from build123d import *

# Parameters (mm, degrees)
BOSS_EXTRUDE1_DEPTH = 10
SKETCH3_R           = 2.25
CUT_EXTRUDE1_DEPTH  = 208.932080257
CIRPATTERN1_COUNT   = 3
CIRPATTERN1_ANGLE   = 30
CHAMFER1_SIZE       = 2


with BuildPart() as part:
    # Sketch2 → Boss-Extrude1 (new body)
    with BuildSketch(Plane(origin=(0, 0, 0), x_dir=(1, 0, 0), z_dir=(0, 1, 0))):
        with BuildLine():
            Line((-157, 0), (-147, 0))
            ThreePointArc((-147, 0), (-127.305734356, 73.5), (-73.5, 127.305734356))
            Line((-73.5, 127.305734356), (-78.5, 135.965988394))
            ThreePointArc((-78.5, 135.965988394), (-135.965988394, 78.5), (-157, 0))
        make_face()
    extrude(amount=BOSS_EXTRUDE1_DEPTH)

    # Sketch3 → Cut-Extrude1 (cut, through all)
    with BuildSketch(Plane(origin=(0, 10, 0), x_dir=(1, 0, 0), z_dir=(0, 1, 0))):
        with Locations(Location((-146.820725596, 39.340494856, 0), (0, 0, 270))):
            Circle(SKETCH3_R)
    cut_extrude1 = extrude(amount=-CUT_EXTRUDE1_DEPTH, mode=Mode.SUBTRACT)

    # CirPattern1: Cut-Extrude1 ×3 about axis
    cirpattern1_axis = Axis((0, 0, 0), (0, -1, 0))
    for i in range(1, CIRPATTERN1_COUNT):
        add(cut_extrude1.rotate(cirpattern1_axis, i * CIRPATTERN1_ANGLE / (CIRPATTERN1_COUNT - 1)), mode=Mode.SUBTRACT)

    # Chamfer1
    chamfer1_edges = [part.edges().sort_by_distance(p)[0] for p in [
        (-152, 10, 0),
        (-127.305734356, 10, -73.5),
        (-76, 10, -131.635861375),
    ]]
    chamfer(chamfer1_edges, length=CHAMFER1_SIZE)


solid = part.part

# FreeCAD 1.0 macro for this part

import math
import FreeCAD as App
import Part
import Sketcher

V = App.Vector
Q = App.Units.Quantity


def edges_at(feature, points):
    """Names of the edges that pass closest to the given points."""
    edges = feature.Shape.Edges
    near = lambda p: min(range(len(edges)), key=lambda i: edges[i].distToShape(Part.Vertex(*p))[0])
    return sorted({f"Edge{near(p) + 1}" for p in points})

doc = App.newDocument("Part")
body = doc.addObject("PartDesign::Body", "Body")

# Sketch on XZ plane
sketch1 = body.newObject("Sketcher::SketchObject", "Sketch")
sketch1.AttachmentSupport = (doc.getObject("XZ_Plane"), [""])
sketch1.MapMode = "FlatFace"
sketch1.addGeometry(Part.LineSegment(V(-157, 0, 0), V(-147, 0, 0)), False)
sketch1.addGeometry(Part.ArcOfCircle(Part.Circle(V(0, 0, 0), V(0, 0, 1), 147), math.radians(-180), math.radians(-120)), False)
sketch1.addGeometry(Part.LineSegment(V(-74, -127, 0), V(-78, -136, 0)), False)
sketch1.addGeometry(Part.ArcOfCircle(Part.Circle(V(0, 0, 0), V(0, 0, 1), 157), math.radians(180), math.radians(240)), False)
sketch1.addConstraint(Sketcher.Constraint("Coincident", 0, 2, 1, 1))
sketch1.addConstraint(Sketcher.Constraint("Coincident", 1, 2, 2, 1))
sketch1.addConstraint(Sketcher.Constraint("Coincident", 2, 2, 3, 2))
sketch1.addConstraint(Sketcher.Constraint("Coincident", 3, 1, 0, 1))
sketch1.addConstraint(Sketcher.Constraint("Horizontal", 0))
sketch1.addConstraint(Sketcher.Constraint("Coincident", 1, 3, -1, 1))
sketch1.addConstraint(Sketcher.Constraint("Coincident", 3, 3, -1, 1))
sketch1.addConstraint(Sketcher.Constraint("PointOnObject", 0, 2, -1))
sketch1.addConstraint(Sketcher.Constraint("Radius", 1, Q("147 mm")))
sketch1.addConstraint(Sketcher.Constraint("Radius", 3, Q("157 mm")))
sketch1.addConstraint(Sketcher.Constraint("Angle", 2, Q("-120 deg")))
sketch1.addConstraint(Sketcher.Constraint("DistanceX", 1, 2, -1, 1, Q("73.5 mm")))
pad1 = body.newObject("PartDesign::Pad", "Pad")
pad1.Profile = sketch1
pad1.Length = 10
pad1.Reversed = True

# Sketch on XZ plane
sketch2 = body.newObject("Sketcher::SketchObject", "Sketch001")
sketch2.AttachmentSupport = (doc.getObject("XZ_Plane"), [""])
sketch2.MapMode = "FlatFace"
sketch2.AttachmentOffset = App.Placement(V(0, 0, -10), App.Rotation())
sketch2.addGeometry(Part.Circle(V(-146.8, -39.3, 0), V(0, 0, 1), 2.2), False)
sketch2.addConstraint(Sketcher.Constraint("Diameter", 0, Q("4.5 mm")))
sketch2.addConstraint(Sketcher.Constraint("DistanceX", 0, 3, -1, 1, Q("146.820726 mm")))
sketch2.addConstraint(Sketcher.Constraint("DistanceY", 0, 3, -1, 1, Q("39.340495 mm")))
pocket1 = body.newObject("PartDesign::Pocket", "Pocket")
pocket1.Profile = sketch2
pocket1.Type = "ThroughAll"
pocket1.Reversed = True
doc.recompute()

polarpattern = body.newObject("PartDesign::PolarPattern", "PolarPattern")
polarpattern.Originals = [pocket1]
polarpattern.Axis = (doc.getObject("Y_Axis"), [""])
polarpattern.Angle = 30
polarpattern.Occurrences = 3
polarpattern.Reversed = True
body.Tip = polarpattern
doc.recompute()

chamfer = body.newObject("PartDesign::Chamfer", "Chamfer")
chamfer.Base = (polarpattern, edges_at(polarpattern, [(-152, 10, 0), (-127.306, 10, -73.5), (-76, 10, -131.636)]))
chamfer.Size = 2

doc.recompute()
